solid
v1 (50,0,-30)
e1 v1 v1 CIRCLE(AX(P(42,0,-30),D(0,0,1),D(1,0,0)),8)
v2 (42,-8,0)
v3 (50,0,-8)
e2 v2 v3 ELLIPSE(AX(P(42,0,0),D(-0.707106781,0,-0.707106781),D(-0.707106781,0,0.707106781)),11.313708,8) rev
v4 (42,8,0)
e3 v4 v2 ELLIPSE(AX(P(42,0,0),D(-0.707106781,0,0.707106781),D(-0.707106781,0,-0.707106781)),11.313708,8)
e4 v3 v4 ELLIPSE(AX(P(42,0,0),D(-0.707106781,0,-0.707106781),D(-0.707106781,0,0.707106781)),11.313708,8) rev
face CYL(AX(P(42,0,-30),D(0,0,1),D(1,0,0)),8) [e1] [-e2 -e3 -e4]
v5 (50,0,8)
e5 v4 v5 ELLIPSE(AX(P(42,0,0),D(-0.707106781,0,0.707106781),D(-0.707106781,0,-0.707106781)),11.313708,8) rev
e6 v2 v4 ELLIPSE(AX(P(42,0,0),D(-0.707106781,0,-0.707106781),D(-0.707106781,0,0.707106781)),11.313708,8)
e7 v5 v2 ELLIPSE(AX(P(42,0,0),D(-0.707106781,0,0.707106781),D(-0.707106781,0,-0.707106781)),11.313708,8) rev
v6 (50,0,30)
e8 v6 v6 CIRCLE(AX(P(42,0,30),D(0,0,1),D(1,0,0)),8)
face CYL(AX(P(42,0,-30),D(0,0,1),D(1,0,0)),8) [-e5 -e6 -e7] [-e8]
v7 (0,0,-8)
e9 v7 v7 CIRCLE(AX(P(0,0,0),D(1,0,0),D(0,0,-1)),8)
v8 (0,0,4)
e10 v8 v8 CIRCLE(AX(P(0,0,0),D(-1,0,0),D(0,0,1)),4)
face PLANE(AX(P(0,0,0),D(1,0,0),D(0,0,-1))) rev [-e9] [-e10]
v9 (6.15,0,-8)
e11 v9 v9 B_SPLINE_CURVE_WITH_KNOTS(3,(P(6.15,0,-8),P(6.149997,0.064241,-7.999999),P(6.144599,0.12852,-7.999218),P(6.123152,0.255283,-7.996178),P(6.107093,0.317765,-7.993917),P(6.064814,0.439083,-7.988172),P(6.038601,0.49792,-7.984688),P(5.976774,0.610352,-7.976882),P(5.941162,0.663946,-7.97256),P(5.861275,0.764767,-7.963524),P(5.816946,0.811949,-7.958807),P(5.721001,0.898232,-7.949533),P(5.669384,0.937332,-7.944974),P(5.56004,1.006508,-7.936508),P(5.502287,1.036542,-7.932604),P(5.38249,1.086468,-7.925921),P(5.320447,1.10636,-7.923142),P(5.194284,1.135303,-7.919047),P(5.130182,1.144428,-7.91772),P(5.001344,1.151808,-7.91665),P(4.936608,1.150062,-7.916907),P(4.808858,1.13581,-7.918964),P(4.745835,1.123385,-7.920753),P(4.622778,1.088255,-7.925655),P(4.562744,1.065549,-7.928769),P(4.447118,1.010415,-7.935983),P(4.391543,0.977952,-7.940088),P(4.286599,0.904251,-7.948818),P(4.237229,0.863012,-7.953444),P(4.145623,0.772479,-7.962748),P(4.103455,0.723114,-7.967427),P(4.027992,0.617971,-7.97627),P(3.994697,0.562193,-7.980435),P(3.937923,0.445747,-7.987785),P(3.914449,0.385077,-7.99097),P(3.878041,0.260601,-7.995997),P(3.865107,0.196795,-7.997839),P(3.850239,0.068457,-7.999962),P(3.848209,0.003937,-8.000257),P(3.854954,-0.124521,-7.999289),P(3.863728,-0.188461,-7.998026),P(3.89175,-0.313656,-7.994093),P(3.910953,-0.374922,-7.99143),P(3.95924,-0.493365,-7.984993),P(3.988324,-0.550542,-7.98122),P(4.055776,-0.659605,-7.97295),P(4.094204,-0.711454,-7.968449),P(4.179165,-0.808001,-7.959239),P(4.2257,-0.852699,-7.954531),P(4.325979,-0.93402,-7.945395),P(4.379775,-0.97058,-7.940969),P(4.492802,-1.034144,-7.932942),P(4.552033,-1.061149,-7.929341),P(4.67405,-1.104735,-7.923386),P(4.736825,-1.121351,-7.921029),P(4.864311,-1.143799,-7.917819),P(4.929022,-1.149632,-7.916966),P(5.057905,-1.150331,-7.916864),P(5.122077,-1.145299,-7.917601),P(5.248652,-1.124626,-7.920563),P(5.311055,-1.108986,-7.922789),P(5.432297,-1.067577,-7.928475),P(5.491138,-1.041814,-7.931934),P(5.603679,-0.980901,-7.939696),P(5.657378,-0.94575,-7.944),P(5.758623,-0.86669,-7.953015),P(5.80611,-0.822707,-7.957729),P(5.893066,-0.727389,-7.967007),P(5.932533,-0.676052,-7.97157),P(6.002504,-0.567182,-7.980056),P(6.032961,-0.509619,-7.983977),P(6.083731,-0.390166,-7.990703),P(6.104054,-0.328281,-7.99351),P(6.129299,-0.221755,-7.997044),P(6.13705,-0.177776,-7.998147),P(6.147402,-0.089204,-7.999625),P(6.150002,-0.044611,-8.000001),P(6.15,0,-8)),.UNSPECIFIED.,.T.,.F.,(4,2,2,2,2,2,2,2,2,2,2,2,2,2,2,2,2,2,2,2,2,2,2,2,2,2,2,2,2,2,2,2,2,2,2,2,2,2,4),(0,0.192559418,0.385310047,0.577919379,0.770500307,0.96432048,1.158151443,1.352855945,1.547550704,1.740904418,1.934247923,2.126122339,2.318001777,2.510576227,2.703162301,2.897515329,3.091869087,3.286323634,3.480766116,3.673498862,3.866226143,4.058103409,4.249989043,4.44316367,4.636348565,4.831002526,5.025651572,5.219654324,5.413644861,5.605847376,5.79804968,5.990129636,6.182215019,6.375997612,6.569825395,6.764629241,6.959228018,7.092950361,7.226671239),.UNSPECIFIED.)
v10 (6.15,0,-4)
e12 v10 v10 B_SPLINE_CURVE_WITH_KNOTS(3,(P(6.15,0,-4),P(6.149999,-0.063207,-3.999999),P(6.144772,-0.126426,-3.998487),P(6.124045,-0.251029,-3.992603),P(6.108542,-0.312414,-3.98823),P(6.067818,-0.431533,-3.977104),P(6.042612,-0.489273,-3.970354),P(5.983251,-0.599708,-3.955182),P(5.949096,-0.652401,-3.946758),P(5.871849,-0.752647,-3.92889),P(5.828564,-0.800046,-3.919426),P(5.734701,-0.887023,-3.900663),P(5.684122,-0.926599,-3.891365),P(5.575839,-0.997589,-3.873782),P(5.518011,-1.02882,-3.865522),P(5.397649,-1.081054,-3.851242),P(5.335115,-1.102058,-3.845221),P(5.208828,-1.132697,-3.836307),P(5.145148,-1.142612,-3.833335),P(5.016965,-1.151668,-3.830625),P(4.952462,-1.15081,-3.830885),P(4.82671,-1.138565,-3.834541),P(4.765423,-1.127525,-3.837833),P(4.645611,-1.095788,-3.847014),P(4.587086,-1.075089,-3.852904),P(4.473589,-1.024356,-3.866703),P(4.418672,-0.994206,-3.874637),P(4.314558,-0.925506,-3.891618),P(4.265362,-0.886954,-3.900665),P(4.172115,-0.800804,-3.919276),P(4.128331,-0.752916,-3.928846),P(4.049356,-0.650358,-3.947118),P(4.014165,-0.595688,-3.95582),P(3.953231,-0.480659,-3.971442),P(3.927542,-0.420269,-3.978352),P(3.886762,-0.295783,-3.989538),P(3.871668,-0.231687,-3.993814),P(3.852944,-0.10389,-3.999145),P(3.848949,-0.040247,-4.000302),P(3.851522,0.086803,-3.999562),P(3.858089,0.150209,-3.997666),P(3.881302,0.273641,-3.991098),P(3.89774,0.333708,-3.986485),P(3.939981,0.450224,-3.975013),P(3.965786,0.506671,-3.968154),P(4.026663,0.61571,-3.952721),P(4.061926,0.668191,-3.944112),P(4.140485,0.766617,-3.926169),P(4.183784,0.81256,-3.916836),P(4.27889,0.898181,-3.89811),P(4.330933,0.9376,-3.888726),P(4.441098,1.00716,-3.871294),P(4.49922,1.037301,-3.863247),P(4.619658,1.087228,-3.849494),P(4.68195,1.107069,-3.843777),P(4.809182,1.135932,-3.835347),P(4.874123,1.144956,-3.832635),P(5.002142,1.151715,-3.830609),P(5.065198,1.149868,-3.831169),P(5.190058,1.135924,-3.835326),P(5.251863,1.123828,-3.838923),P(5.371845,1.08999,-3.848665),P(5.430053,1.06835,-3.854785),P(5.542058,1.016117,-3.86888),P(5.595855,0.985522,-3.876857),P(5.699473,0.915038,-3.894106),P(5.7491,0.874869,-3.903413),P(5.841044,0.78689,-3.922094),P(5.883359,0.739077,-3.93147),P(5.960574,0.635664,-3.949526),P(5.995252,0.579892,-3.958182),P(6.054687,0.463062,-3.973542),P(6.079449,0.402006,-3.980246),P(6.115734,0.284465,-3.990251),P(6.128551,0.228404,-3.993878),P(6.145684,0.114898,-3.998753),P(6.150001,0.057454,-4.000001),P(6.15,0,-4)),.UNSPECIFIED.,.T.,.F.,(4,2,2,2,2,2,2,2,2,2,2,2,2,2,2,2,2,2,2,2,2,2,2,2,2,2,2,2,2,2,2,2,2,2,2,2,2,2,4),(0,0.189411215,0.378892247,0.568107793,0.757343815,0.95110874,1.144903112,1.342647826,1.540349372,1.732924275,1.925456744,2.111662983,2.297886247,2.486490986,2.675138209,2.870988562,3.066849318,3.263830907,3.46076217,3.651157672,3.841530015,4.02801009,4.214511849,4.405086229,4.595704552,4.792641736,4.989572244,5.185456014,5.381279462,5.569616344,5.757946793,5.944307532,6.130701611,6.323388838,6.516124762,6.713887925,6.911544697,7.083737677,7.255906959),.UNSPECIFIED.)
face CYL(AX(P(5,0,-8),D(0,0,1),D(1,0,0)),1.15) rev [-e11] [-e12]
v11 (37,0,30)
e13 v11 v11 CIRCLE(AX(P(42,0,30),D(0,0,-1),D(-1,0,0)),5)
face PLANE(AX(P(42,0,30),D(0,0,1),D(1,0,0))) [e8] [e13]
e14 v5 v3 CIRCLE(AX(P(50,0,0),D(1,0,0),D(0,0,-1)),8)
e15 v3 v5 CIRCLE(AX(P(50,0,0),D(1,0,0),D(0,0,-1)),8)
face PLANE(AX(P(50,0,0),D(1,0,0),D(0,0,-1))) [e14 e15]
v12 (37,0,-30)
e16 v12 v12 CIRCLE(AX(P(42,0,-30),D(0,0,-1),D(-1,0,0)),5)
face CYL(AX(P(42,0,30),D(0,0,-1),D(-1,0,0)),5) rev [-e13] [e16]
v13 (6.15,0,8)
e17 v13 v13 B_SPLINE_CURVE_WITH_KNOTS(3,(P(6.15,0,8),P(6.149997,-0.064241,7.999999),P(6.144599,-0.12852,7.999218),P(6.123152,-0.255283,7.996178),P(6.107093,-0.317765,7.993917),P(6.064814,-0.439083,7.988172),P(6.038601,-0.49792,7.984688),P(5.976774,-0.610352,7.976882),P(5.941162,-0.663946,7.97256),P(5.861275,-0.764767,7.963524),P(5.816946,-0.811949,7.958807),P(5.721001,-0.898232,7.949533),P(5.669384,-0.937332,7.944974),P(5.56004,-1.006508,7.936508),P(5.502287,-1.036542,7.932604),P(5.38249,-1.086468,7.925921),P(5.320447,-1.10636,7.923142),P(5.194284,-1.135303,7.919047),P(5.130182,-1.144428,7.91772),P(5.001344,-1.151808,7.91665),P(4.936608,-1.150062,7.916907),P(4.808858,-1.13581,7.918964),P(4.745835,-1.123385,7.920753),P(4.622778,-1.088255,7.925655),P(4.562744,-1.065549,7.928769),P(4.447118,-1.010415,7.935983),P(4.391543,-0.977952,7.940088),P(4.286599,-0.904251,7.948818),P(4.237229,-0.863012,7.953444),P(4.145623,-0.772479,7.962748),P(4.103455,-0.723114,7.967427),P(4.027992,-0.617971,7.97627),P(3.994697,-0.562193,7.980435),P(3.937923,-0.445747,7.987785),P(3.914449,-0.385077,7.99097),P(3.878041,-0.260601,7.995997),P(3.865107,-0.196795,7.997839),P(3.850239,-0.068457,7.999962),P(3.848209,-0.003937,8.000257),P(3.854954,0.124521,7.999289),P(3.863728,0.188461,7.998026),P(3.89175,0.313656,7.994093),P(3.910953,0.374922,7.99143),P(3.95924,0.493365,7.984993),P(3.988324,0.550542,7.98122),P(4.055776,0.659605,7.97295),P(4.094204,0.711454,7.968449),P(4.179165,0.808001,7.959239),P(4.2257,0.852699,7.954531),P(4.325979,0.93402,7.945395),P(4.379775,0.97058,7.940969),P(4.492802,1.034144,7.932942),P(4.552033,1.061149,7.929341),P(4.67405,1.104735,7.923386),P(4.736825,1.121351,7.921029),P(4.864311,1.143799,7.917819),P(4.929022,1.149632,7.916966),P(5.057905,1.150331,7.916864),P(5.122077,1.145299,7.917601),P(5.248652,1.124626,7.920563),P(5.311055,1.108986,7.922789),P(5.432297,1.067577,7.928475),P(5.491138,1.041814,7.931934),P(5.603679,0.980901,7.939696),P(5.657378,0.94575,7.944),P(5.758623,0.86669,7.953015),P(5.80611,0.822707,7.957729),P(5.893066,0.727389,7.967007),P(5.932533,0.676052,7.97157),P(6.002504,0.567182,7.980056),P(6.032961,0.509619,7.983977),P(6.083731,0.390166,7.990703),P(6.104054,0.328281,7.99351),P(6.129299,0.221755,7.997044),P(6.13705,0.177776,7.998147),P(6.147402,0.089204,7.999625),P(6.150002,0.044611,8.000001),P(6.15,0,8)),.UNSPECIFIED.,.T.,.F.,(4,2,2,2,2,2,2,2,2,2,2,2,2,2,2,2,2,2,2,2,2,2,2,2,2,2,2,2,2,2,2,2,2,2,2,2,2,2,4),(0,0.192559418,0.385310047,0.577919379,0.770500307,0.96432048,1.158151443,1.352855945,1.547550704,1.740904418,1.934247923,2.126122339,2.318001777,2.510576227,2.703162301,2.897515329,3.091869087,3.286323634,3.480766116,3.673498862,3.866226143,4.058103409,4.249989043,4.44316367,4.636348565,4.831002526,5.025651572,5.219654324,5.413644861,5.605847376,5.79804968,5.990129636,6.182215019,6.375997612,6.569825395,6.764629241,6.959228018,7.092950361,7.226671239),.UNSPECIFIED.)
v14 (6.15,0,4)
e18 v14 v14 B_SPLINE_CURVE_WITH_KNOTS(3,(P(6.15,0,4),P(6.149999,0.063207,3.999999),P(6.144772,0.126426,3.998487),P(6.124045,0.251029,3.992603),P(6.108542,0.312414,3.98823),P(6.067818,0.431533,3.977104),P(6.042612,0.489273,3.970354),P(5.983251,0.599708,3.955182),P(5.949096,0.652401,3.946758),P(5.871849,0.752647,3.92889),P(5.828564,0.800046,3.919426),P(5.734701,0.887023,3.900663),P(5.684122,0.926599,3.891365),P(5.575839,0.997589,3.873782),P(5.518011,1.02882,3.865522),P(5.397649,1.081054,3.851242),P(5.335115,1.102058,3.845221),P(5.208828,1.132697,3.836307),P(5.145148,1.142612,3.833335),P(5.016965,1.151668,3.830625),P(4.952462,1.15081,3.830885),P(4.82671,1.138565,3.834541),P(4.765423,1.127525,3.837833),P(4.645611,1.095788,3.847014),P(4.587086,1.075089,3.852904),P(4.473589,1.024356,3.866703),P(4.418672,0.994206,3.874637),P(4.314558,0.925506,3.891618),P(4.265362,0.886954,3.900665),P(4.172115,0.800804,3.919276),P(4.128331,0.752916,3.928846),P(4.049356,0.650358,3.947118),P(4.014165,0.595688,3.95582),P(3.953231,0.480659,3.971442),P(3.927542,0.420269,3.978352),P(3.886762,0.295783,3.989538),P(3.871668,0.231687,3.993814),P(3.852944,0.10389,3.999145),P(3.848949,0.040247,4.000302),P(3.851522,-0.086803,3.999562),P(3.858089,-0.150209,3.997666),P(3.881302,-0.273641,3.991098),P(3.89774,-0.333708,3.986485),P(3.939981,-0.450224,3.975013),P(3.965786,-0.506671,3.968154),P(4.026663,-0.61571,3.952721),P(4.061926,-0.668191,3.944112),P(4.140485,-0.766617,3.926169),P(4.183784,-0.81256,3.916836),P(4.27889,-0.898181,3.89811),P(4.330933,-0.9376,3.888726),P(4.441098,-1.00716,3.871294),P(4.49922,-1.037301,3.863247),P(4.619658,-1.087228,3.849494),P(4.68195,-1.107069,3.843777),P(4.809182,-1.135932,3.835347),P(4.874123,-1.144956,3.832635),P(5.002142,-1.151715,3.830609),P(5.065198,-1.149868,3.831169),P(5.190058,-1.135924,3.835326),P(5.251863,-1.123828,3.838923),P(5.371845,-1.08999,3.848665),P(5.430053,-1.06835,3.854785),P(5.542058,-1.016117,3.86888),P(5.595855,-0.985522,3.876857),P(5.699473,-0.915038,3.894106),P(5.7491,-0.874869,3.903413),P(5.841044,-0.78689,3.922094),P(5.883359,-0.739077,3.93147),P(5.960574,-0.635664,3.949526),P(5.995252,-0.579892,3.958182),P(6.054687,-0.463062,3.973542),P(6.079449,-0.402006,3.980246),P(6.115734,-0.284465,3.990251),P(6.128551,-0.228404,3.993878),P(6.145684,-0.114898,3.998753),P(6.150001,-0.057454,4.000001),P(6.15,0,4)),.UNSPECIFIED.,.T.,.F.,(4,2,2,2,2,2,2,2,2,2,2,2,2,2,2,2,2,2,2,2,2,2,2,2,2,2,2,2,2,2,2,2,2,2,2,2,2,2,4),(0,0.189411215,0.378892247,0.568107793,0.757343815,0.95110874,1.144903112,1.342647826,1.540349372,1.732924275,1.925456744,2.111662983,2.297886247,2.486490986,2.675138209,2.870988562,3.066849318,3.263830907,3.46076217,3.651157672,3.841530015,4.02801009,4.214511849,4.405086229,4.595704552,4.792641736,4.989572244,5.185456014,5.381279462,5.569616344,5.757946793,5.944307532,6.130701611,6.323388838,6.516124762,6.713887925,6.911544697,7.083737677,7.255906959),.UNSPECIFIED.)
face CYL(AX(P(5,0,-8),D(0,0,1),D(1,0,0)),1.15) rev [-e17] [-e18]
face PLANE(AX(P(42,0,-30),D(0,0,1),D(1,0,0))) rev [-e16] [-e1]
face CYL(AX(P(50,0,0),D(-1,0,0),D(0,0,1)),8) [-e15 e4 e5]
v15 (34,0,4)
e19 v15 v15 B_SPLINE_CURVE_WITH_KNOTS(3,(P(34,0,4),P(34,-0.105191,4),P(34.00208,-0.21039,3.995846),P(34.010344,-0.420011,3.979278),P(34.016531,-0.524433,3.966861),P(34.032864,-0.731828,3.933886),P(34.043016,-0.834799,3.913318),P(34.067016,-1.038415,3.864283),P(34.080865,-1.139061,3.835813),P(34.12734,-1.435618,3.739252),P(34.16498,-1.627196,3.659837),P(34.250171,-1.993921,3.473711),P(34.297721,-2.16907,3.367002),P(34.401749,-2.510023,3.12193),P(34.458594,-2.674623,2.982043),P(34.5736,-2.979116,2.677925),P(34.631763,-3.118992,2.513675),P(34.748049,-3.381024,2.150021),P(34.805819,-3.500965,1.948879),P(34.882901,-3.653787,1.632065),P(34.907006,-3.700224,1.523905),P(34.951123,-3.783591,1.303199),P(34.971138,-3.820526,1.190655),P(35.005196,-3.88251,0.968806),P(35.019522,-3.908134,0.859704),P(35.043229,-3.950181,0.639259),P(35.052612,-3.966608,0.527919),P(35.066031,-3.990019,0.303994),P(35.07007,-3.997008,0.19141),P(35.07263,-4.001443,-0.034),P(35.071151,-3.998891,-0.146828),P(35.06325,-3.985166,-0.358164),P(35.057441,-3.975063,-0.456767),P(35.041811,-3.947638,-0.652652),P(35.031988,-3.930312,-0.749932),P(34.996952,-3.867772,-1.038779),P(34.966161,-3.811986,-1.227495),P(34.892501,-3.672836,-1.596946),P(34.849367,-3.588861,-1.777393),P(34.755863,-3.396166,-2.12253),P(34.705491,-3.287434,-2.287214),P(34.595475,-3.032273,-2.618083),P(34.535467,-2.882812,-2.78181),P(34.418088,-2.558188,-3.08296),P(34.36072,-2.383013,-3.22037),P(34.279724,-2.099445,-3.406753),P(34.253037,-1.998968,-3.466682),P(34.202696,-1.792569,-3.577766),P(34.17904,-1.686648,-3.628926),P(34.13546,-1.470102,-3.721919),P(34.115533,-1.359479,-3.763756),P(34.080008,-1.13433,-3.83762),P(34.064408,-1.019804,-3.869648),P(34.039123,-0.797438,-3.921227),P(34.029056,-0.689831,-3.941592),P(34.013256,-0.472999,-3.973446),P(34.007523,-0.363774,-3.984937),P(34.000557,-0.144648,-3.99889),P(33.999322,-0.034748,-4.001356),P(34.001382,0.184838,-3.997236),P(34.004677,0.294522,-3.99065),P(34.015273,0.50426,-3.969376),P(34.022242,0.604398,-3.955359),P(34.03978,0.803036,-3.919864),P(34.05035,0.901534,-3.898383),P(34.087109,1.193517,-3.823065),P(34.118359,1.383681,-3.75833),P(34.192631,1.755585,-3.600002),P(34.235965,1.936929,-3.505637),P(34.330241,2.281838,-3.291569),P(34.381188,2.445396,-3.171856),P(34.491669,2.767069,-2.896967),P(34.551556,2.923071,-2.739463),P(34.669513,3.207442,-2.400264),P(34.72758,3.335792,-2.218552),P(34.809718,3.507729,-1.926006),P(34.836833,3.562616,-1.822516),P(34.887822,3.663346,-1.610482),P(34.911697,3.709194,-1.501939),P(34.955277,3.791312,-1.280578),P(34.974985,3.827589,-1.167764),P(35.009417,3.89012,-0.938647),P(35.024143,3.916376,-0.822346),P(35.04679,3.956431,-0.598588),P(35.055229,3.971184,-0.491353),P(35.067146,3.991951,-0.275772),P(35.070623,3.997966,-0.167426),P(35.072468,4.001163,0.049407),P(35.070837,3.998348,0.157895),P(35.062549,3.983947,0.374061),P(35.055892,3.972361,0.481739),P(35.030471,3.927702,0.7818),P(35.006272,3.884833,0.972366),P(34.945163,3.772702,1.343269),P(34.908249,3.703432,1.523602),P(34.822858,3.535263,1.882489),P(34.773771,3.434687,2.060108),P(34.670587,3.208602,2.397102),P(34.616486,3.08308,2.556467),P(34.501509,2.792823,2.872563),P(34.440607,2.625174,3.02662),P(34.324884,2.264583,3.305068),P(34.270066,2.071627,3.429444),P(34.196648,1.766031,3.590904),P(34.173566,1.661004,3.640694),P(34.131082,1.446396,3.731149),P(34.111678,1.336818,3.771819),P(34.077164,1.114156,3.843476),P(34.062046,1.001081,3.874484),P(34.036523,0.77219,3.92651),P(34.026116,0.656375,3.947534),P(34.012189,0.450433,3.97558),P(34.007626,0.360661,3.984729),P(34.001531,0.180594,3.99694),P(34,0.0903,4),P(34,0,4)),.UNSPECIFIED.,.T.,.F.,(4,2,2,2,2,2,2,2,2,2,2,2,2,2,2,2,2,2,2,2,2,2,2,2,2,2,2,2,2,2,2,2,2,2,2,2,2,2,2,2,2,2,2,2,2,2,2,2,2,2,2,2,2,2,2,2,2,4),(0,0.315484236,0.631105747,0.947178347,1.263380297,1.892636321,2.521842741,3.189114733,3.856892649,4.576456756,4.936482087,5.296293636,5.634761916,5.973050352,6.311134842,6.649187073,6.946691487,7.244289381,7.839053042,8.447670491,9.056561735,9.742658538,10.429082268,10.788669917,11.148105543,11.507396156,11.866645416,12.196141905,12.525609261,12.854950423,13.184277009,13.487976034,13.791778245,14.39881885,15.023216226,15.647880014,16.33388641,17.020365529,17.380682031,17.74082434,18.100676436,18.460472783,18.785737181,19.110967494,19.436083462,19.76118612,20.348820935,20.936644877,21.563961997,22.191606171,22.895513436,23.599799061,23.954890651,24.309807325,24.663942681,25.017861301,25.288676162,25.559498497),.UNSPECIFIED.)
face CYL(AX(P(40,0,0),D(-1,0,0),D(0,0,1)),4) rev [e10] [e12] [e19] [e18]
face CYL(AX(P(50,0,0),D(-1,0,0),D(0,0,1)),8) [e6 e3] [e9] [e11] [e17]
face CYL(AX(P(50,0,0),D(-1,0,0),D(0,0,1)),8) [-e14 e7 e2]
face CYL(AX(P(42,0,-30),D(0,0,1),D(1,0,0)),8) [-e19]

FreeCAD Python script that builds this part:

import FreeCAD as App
import Part
import Sketcher
Q = App.Units.Quantity

doc = App.newDocument("Part")
body = doc.addObject("PartDesign::Body", "Body")

# Sketch on YZ plane
sketch1 = body.newObject("Sketcher::SketchObject", "Sketch")
sketch1.AttachmentSupport = (doc.getObject("YZ_Plane"), [""])
sketch1.MapMode = "FlatFace"
sketch1.addGeometry(Part.Circle(App.Vector(0, 0, 0), App.Vector(0, 0, 1), 8), False)
sketch1.addConstraint(Sketcher.Constraint("Coincident", 0, 3, -1, 1))
sketch1.addConstraint(Sketcher.Constraint("Diameter", 0, Q("16 mm")))
pad1 = body.newObject("PartDesign::Pad", "Pad")
pad1.Profile = sketch1
pad1.Length = 50

# Sketch on YZ plane
sketch2 = body.newObject("Sketcher::SketchObject", "Sketch001")
sketch2.AttachmentSupport = (doc.getObject("YZ_Plane"), [""])
sketch2.MapMode = "FlatFace"
sketch2.addGeometry(Part.Circle(App.Vector(0, 0, 0), App.Vector(0, 0, 1), 4), False)
sketch2.addConstraint(Sketcher.Constraint("Coincident", 0, 3, -1, 1))
sketch2.addConstraint(Sketcher.Constraint("Diameter", 0, Q("8 mm")))
pocket1 = body.newObject("PartDesign::Pocket", "Pocket")
pocket1.Profile = sketch2
pocket1.Length = 40
pocket1.Reversed = True

# Sketch on XY plane
sketch3 = body.newObject("Sketcher::SketchObject", "Sketch002")
sketch3.AttachmentSupport = (doc.getObject("XY_Plane"), [""])
sketch3.MapMode = "FlatFace"
sketch3.addGeometry(Part.Circle(App.Vector(5, 0, 0), App.Vector(0, 0, 1), 1.1), False)
sketch3.addConstraint(Sketcher.Constraint("PointOnObject", 0, 3, -1))
sketch3.addConstraint(Sketcher.Constraint("Diameter", 0, Q("2.3 mm")))
sketch3.addConstraint(Sketcher.Constraint("DistanceX", -1, 1, 0, 3, Q("5 mm")))
pocket2 = body.newObject("PartDesign::Pocket", "Pocket001")
pocket2.Profile = sketch3
pocket2.Type = "ThroughAll"
pocket2.Midplane = True

# Sketch on XY plane
sketch4 = body.newObject("Sketcher::SketchObject", "Sketch003")
sketch4.AttachmentSupport = (doc.getObject("XY_Plane"), [""])
sketch4.MapMode = "FlatFace"
sketch4.addGeometry(Part.Circle(App.Vector(42, 0, 0), App.Vector(0, 0, 1), 8), False)
sketch4.addConstraint(Sketcher.Constraint("PointOnObject", 0, 3, -1))
sketch4.addConstraint(Sketcher.Constraint("Diameter", 0, Q("16 mm")))
sketch4.addConstraint(Sketcher.Constraint("DistanceX", -1, 1, 0, 3, Q("42 mm")))
pad2 = body.newObject("PartDesign::Pad", "Pad001")
pad2.Profile = sketch4
pad2.Type = "TwoLengths"
pad2.Length = 30
pad2.Length2 = 30

# Sketch on XY plane
sketch5 = body.newObject("Sketcher::SketchObject", "Sketch004")
sketch5.AttachmentSupport = (doc.getObject("XY_Plane"), [""])
sketch5.MapMode = "FlatFace"
sketch5.AttachmentOffset = App.Placement(App.Vector(0, 0, -30), App.Rotation())
sketch5.addGeometry(Part.Circle(App.Vector(42, 0, 0), App.Vector(0, 0, 1), 5), False)
sketch5.addConstraint(Sketcher.Constraint("PointOnObject", 0, 3, -1))
sketch5.addConstraint(Sketcher.Constraint("Diameter", 0, Q("10 mm")))
sketch5.addConstraint(Sketcher.Constraint("DistanceX", -1, 1, 0, 3, Q("42 mm")))
pocket3 = body.newObject("PartDesign::Pocket", "Pocket002")
pocket3.Profile = sketch5
pocket3.Type = "ThroughAll"
pocket3.Reversed = True

doc.recompute()
